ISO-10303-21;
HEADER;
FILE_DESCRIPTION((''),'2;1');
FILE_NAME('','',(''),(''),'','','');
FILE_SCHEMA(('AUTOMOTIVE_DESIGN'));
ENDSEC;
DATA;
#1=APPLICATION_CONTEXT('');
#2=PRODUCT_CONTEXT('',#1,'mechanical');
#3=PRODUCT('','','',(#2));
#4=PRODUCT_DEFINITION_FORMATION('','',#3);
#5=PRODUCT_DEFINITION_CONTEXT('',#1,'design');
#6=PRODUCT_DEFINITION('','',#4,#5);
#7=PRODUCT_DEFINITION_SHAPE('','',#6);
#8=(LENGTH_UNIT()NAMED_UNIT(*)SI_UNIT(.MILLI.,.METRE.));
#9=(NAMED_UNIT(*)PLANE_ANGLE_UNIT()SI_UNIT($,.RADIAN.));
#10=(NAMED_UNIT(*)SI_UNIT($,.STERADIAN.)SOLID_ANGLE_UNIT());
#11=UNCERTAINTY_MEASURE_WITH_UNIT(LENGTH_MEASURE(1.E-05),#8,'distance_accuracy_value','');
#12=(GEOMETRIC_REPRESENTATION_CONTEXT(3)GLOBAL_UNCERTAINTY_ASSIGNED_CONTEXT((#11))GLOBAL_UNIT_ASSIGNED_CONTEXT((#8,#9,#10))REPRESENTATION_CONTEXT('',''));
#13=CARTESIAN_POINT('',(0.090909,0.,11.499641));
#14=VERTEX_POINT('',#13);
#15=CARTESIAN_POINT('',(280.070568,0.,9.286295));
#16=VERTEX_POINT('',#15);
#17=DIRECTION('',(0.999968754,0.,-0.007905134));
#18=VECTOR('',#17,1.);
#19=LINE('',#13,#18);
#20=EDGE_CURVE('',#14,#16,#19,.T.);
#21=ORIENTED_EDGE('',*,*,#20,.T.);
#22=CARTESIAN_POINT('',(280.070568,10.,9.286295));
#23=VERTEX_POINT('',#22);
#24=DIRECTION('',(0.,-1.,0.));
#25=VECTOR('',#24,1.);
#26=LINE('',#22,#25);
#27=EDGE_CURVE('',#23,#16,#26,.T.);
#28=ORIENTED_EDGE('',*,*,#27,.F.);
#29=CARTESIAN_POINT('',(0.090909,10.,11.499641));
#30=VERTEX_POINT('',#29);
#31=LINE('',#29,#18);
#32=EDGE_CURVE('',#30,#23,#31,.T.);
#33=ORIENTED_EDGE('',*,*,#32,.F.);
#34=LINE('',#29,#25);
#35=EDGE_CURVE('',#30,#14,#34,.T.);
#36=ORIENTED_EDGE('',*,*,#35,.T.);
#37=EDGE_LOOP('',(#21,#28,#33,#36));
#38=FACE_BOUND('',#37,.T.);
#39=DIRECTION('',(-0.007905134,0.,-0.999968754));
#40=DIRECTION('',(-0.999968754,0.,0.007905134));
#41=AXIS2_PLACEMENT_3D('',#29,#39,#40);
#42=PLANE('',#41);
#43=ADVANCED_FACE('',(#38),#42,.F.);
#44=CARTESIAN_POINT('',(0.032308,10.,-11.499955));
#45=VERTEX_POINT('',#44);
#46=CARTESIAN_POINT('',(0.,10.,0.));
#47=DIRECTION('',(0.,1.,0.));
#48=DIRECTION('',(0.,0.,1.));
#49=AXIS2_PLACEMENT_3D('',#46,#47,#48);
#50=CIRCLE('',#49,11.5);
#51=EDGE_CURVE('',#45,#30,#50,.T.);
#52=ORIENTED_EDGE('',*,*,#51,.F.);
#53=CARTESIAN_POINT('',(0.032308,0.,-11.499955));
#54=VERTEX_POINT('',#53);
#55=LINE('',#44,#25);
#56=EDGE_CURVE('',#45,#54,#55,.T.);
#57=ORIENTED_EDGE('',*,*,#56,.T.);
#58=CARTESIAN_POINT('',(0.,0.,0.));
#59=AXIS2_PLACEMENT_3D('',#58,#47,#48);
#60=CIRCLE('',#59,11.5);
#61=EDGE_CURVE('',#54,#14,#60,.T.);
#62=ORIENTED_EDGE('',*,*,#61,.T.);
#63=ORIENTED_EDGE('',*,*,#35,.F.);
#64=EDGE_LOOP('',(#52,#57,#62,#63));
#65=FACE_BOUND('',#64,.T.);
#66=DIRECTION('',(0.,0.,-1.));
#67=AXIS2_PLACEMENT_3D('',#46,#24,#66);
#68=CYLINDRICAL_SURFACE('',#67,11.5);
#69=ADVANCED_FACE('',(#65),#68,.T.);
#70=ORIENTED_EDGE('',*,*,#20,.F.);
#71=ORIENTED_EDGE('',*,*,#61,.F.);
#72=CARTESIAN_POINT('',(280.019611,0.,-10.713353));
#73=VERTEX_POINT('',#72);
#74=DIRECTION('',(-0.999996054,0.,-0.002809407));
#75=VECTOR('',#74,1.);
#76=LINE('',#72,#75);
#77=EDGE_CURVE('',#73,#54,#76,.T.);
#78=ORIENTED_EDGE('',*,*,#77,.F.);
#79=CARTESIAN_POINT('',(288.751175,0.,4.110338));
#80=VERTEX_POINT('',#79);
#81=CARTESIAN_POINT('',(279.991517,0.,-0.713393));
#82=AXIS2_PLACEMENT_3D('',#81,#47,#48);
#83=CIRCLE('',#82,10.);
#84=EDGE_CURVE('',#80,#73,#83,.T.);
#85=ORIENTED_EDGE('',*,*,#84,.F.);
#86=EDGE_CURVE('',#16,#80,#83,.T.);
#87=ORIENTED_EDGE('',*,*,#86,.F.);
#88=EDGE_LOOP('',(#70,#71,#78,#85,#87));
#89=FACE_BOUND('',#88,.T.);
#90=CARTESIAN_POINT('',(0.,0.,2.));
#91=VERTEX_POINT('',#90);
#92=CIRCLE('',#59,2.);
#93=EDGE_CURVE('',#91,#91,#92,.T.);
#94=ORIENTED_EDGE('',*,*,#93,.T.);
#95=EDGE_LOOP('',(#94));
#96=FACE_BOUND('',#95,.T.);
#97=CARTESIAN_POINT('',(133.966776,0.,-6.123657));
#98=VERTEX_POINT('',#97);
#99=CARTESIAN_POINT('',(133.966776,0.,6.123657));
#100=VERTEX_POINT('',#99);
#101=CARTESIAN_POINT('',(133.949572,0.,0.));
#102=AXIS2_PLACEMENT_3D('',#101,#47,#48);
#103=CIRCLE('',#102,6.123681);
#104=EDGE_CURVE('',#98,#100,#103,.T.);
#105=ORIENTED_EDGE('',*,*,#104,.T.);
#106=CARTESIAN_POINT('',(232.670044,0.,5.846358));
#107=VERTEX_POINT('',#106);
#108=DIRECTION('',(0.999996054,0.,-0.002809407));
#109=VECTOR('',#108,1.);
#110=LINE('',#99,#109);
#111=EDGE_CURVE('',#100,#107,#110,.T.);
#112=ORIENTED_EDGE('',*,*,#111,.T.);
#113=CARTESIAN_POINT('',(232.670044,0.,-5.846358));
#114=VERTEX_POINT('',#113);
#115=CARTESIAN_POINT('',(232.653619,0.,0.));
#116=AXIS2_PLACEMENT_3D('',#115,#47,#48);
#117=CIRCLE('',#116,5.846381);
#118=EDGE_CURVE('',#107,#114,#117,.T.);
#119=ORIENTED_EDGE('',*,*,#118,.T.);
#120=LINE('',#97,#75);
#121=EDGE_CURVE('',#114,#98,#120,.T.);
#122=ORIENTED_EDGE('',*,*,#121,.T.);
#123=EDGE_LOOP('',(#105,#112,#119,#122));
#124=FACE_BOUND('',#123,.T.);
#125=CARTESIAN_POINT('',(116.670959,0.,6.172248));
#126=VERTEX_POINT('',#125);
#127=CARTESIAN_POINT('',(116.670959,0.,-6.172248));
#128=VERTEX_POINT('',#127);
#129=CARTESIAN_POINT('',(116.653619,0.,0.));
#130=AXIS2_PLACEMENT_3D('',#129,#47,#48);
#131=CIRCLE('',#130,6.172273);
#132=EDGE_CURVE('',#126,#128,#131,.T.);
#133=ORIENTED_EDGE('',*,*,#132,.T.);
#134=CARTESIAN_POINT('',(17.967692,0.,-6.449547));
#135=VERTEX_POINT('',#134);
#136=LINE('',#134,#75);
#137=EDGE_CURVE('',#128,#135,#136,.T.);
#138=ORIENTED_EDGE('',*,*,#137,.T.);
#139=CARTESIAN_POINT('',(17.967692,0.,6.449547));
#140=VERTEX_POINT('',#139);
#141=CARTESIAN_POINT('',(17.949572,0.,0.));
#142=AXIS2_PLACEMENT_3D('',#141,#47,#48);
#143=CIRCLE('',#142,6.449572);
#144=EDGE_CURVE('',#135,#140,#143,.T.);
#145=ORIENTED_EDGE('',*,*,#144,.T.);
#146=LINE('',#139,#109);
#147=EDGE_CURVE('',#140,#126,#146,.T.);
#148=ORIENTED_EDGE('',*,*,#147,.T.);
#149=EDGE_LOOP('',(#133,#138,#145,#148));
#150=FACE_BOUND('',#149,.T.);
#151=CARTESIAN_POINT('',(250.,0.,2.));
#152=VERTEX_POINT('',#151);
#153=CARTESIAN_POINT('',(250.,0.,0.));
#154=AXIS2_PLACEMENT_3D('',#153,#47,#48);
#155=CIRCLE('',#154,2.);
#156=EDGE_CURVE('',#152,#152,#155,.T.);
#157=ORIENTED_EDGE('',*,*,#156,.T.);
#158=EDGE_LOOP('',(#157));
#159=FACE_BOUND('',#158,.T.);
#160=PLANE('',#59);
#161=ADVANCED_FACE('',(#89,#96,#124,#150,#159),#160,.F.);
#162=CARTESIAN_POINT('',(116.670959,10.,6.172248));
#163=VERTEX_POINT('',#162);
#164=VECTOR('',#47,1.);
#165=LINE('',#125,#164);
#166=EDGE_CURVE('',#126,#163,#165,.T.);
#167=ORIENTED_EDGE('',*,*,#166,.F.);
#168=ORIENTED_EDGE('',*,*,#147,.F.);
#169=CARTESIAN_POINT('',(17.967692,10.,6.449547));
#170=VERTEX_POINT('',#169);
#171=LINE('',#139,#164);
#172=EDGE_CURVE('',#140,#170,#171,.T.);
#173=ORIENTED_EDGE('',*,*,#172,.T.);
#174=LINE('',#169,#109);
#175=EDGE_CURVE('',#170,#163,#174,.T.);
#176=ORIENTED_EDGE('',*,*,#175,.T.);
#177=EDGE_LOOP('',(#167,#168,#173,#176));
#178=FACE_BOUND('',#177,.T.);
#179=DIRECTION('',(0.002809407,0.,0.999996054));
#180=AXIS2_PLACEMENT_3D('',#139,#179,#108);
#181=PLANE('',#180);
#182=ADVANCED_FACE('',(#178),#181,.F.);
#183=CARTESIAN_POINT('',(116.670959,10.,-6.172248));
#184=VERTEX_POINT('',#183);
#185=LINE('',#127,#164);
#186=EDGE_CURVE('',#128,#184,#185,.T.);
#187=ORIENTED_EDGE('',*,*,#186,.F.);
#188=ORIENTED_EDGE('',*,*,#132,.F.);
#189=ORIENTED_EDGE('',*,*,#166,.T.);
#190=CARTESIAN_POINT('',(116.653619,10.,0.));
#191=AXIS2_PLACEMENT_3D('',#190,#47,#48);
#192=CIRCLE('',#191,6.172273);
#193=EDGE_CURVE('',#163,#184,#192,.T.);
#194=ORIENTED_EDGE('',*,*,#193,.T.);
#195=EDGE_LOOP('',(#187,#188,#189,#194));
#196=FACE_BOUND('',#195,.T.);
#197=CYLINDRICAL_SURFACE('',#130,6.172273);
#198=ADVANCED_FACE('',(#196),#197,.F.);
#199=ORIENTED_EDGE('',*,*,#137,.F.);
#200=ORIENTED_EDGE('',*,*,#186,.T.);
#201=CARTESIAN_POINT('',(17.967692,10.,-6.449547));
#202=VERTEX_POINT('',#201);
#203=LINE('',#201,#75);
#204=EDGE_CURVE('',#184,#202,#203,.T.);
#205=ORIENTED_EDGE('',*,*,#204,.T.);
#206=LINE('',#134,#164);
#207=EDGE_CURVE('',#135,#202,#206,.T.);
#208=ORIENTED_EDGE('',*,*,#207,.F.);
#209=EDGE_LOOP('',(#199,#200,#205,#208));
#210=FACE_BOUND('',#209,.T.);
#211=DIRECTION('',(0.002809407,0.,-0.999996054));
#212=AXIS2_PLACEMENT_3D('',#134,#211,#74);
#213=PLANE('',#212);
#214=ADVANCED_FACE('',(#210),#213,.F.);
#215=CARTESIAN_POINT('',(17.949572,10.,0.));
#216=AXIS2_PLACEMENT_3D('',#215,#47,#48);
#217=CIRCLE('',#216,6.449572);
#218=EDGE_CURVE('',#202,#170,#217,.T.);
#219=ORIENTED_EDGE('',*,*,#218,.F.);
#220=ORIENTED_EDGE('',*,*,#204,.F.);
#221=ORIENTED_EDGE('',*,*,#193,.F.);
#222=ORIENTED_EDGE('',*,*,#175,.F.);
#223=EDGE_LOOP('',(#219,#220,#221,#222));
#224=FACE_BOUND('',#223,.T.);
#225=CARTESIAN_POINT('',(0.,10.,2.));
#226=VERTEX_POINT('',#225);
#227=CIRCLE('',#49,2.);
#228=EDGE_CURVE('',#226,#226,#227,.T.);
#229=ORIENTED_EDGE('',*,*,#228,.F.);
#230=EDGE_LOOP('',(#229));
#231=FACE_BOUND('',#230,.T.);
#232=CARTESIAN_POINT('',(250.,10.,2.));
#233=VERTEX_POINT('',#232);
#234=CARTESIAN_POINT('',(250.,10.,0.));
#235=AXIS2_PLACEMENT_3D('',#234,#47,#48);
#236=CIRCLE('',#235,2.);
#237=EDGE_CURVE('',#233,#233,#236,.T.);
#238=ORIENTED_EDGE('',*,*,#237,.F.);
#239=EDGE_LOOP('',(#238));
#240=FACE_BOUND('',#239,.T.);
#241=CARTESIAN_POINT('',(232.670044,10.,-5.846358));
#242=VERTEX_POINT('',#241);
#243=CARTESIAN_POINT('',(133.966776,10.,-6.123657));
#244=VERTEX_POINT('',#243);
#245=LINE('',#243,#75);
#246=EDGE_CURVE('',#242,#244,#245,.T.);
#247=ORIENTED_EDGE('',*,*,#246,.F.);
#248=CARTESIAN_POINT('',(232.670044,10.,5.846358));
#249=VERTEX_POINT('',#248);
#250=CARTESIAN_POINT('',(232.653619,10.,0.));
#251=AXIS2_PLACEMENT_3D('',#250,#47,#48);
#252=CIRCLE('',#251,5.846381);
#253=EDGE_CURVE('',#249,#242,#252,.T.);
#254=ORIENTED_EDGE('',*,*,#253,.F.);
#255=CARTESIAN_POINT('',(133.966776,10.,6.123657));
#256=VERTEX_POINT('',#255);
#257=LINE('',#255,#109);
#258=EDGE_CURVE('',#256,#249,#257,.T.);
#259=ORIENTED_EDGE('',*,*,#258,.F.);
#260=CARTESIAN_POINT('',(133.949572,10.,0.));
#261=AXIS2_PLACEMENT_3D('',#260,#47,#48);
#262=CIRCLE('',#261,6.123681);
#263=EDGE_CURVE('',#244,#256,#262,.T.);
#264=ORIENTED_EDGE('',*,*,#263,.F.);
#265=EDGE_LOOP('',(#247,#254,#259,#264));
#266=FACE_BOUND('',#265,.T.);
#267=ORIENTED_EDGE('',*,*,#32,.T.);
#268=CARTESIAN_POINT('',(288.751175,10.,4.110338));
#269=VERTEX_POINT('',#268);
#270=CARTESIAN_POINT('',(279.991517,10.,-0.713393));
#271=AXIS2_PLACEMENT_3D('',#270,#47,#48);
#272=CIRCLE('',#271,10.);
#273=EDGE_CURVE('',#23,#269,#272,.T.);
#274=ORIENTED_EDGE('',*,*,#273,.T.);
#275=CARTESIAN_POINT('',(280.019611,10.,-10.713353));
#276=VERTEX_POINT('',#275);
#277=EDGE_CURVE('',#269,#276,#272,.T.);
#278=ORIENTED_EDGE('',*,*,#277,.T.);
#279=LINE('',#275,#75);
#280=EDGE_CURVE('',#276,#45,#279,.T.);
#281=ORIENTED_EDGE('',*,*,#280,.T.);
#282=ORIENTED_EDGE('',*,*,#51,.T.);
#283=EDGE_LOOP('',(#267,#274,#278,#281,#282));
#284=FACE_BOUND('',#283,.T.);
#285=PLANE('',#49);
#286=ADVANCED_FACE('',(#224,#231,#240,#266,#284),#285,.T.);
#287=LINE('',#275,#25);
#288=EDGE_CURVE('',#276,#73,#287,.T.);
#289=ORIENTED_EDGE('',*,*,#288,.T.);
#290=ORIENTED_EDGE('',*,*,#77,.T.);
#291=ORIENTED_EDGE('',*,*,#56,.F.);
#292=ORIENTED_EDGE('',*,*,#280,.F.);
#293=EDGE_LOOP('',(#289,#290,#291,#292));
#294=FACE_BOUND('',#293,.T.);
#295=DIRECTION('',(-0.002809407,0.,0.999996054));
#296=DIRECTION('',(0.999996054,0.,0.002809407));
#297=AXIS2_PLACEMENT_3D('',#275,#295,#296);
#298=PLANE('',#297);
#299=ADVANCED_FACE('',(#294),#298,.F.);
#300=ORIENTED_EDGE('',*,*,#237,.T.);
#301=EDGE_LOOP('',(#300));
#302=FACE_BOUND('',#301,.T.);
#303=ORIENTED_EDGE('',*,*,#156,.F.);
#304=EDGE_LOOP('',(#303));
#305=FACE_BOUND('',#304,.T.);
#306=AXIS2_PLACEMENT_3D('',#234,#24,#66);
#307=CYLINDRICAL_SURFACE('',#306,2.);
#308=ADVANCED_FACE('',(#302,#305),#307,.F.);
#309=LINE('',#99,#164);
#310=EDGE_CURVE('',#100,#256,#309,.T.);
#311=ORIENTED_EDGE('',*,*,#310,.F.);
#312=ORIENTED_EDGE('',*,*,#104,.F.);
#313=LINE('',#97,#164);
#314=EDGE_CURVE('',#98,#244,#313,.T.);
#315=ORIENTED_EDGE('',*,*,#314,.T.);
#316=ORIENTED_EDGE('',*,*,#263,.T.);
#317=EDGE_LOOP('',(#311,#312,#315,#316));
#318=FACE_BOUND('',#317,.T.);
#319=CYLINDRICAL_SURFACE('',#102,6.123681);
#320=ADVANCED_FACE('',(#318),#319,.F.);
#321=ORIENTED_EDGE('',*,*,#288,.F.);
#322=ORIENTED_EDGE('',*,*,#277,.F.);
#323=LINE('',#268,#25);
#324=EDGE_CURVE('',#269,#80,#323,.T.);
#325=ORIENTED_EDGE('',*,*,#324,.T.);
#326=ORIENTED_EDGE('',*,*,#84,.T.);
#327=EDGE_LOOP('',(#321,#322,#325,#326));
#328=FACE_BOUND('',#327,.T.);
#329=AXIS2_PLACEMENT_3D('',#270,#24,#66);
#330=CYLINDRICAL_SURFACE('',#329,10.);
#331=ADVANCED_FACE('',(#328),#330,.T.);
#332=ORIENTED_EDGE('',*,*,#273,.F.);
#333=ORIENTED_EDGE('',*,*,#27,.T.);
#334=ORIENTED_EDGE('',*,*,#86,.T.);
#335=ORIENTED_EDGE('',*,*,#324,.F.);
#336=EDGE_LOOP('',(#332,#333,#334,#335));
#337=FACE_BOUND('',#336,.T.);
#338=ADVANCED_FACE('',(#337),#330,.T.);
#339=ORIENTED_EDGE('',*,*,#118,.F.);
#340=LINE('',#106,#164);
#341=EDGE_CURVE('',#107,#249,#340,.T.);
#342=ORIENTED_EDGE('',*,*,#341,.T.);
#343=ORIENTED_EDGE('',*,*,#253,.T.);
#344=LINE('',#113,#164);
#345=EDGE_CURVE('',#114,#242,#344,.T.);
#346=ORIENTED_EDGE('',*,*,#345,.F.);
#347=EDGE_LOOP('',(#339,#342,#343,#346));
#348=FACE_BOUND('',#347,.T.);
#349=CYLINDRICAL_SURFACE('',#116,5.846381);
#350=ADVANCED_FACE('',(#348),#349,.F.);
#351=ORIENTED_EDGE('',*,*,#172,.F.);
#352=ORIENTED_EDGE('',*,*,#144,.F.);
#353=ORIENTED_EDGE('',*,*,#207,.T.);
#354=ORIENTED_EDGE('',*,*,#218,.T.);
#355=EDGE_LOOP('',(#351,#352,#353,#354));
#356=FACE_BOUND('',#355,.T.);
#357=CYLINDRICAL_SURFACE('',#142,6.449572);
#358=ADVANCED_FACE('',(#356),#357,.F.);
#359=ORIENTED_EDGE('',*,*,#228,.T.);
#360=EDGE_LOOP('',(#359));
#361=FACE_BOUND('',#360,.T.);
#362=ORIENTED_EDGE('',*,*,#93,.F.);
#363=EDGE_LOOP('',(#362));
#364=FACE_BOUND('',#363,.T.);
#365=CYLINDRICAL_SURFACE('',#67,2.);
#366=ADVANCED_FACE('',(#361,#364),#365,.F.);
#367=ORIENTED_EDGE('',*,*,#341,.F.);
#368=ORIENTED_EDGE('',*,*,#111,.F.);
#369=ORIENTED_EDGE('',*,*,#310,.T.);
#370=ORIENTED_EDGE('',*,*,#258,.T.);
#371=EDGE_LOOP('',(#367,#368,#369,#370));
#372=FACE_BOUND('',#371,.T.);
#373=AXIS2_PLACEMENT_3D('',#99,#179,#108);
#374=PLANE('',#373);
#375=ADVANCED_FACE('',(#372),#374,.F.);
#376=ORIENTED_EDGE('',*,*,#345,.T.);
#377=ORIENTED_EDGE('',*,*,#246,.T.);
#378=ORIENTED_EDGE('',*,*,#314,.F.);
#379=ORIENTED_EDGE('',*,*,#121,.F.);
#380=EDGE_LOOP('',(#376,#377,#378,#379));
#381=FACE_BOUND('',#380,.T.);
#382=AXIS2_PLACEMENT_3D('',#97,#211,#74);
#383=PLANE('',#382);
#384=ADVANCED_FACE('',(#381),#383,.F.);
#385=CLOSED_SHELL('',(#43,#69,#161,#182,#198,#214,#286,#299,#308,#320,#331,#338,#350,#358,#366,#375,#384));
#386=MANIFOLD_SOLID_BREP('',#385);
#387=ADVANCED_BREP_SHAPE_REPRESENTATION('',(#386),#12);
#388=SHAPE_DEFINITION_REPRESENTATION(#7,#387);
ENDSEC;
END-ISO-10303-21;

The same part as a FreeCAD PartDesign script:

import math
import FreeCAD as App
import Part
import Sketcher

V = App.Vector
Q = App.Units.Quantity

doc = App.newDocument("Part")
body = doc.addObject("PartDesign::Body", "Body")

# Sketch on XZ plane
sketch1 = body.newObject("Sketcher::SketchObject", "Sketch")
sketch1.AttachmentSupport = (doc.getObject("XZ_Plane"), [""])
sketch1.MapMode = "FlatFace"
sketch1.addGeometry([
    Part.LineSegment(V(0.090909, 11.499641, 0), V(280.070568, 9.286295, 0)),  # 0
    Part.ArcOfCircle(Part.Circle(V(279.991517, -0.713393, 0), V(0, 0, 1), 10), math.radians(-89.839033), math.radians(89.547064)),  # 1
    Part.LineSegment(V(280.019611, -10.713353, 0), V(0.032308, -11.499955, 0)),  # 2
    Part.ArcOfCircle(Part.Circle(V(0, 0, 0), V(0, 0, 1), 11.5), math.radians(89.547064), math.radians(270.160967)),  # 3
    Part.Circle(V(0, 0, 0), V(0, 0, 1), 2),  # 4
    Part.Circle(V(250, 0, 0), V(0, 0, 1), 2),  # 5
], False)
sketch1.addConstraint([
    Sketcher.Constraint("Tangent", 0, 2, 1, 2),
    Sketcher.Constraint("Tangent", 1, 1, 2, 1),
    Sketcher.Constraint("Tangent", 2, 2, 3, 2),
    Sketcher.Constraint("Tangent", 3, 1, 0, 1),
    Sketcher.Constraint("Coincident", 3, 3, -1, 1),
    Sketcher.Constraint("Coincident", 4, 3, -1, 1),
    Sketcher.Constraint("Equal", 4, 5),
    Sketcher.Constraint("PointOnObject", 5, 3, -1),
    Sketcher.Constraint("Diameter", 4, Q("4 mm")),
    Sketcher.Constraint("Radius", 1, Q("10 mm")),
    Sketcher.Constraint("Radius", 3, Q("11.5 mm")),
    Sketcher.Constraint("DistanceX", -1, 1, 5, 3, Q("250 mm")),
    Sketcher.Constraint("DistanceY", 2, 2, 1, 1, Q("0.786601 mm")),
    Sketcher.Constraint("DistanceX", -1, 1, 1, 1, Q("280.019611 mm")),
])
pad1 = body.newObject("PartDesign::Pad", "Pad")
pad1.Profile = sketch1
pad1.Length = 10
pad1.Reversed = True

# Sketch on XZ plane
sketch2 = body.newObject("Sketcher::SketchObject", "Sketch001")
sketch2.AttachmentSupport = (doc.getObject("XZ_Plane"), [""])
sketch2.MapMode = "FlatFace"
sketch2.AttachmentOffset = App.Placement(V(0, 0, -10), App.Rotation())
sketch2.addGeometry([
    Part.LineSegment(V(116.670959, -6.172248, 0), V(17.967692, -6.449547, 0)),  # 0
    Part.ArcOfCircle(Part.Circle(V(17.949572, 0, 0), V(0, 0, 1), 6.449572), math.radians(89.839033), math.radians(270.160967)),  # 1
    Part.LineSegment(V(17.967692, 6.449547, 0), V(116.670959, 6.172248, 0)),  # 2
    Part.ArcOfCircle(Part.Circle(V(116.653619, 0, 0), V(0, 0, 1), 6.172273), math.radians(-89.839033), math.radians(89.839033)),  # 3
    Part.LineSegment(V(232.670044, -5.846358, 0), V(133.966776, -6.123657, 0)),  # 4
    Part.ArcOfCircle(Part.Circle(V(133.949572, 0, 0), V(0, 0, 1), 6.123681), math.radians(89.839033), math.radians(270.160967)),  # 5
    Part.LineSegment(V(133.966776, 6.123657, 0), V(232.670044, 5.846358, 0)),  # 6
    Part.ArcOfCircle(Part.Circle(V(232.653619, 0, 0), V(0, 0, 1), 5.846381), math.radians(-89.839033), math.radians(89.839033)),  # 7
], False)
sketch2.addConstraint([
    Sketcher.Constraint("Tangent", 0, 2, 1, 2),
    Sketcher.Constraint("Tangent", 1, 1, 2, 1),
    Sketcher.Constraint("Tangent", 2, 2, 3, 2),
    Sketcher.Constraint("Tangent", 3, 1, 0, 1),
    Sketcher.Constraint("Tangent", 4, 2, 5, 2),
    Sketcher.Constraint("Tangent", 5, 1, 6, 1),
    Sketcher.Constraint("Tangent", 6, 2, 7, 2),
    Sketcher.Constraint("Tangent", 7, 1, 4, 1),
    Sketcher.Constraint("Symmetric", 0, 2, 1, 1, -1),
    Sketcher.Constraint("Symmetric", 4, 2, 5, 1, -1),
    Sketcher.Constraint("Parallel", 0, 4),
    Sketcher.Constraint("Equal", 2, 4),
    Sketcher.Constraint("DistanceX", 1, 3, 5, 3, Q("116 mm")),
    Sketcher.Constraint("Radius", 5, Q("6.123681 mm")),
    Sketcher.Constraint("Radius", 7, Q("5.846381 mm")),
    Sketcher.Constraint("Radius", 1, Q("6.449572 mm")),
    Sketcher.Constraint("DistanceX", -1, 1, 3, 3, Q("116.653619 mm")),
    Sketcher.Constraint("DistanceX", -1, 1, 0, 2, Q("17.967692 mm")),
])
pocket1 = body.newObject("PartDesign::Pocket", "Pocket")
pocket1.Profile = sketch2
pocket1.Type = "ThroughAll"
pocket1.Reversed = True

doc.recompute()
